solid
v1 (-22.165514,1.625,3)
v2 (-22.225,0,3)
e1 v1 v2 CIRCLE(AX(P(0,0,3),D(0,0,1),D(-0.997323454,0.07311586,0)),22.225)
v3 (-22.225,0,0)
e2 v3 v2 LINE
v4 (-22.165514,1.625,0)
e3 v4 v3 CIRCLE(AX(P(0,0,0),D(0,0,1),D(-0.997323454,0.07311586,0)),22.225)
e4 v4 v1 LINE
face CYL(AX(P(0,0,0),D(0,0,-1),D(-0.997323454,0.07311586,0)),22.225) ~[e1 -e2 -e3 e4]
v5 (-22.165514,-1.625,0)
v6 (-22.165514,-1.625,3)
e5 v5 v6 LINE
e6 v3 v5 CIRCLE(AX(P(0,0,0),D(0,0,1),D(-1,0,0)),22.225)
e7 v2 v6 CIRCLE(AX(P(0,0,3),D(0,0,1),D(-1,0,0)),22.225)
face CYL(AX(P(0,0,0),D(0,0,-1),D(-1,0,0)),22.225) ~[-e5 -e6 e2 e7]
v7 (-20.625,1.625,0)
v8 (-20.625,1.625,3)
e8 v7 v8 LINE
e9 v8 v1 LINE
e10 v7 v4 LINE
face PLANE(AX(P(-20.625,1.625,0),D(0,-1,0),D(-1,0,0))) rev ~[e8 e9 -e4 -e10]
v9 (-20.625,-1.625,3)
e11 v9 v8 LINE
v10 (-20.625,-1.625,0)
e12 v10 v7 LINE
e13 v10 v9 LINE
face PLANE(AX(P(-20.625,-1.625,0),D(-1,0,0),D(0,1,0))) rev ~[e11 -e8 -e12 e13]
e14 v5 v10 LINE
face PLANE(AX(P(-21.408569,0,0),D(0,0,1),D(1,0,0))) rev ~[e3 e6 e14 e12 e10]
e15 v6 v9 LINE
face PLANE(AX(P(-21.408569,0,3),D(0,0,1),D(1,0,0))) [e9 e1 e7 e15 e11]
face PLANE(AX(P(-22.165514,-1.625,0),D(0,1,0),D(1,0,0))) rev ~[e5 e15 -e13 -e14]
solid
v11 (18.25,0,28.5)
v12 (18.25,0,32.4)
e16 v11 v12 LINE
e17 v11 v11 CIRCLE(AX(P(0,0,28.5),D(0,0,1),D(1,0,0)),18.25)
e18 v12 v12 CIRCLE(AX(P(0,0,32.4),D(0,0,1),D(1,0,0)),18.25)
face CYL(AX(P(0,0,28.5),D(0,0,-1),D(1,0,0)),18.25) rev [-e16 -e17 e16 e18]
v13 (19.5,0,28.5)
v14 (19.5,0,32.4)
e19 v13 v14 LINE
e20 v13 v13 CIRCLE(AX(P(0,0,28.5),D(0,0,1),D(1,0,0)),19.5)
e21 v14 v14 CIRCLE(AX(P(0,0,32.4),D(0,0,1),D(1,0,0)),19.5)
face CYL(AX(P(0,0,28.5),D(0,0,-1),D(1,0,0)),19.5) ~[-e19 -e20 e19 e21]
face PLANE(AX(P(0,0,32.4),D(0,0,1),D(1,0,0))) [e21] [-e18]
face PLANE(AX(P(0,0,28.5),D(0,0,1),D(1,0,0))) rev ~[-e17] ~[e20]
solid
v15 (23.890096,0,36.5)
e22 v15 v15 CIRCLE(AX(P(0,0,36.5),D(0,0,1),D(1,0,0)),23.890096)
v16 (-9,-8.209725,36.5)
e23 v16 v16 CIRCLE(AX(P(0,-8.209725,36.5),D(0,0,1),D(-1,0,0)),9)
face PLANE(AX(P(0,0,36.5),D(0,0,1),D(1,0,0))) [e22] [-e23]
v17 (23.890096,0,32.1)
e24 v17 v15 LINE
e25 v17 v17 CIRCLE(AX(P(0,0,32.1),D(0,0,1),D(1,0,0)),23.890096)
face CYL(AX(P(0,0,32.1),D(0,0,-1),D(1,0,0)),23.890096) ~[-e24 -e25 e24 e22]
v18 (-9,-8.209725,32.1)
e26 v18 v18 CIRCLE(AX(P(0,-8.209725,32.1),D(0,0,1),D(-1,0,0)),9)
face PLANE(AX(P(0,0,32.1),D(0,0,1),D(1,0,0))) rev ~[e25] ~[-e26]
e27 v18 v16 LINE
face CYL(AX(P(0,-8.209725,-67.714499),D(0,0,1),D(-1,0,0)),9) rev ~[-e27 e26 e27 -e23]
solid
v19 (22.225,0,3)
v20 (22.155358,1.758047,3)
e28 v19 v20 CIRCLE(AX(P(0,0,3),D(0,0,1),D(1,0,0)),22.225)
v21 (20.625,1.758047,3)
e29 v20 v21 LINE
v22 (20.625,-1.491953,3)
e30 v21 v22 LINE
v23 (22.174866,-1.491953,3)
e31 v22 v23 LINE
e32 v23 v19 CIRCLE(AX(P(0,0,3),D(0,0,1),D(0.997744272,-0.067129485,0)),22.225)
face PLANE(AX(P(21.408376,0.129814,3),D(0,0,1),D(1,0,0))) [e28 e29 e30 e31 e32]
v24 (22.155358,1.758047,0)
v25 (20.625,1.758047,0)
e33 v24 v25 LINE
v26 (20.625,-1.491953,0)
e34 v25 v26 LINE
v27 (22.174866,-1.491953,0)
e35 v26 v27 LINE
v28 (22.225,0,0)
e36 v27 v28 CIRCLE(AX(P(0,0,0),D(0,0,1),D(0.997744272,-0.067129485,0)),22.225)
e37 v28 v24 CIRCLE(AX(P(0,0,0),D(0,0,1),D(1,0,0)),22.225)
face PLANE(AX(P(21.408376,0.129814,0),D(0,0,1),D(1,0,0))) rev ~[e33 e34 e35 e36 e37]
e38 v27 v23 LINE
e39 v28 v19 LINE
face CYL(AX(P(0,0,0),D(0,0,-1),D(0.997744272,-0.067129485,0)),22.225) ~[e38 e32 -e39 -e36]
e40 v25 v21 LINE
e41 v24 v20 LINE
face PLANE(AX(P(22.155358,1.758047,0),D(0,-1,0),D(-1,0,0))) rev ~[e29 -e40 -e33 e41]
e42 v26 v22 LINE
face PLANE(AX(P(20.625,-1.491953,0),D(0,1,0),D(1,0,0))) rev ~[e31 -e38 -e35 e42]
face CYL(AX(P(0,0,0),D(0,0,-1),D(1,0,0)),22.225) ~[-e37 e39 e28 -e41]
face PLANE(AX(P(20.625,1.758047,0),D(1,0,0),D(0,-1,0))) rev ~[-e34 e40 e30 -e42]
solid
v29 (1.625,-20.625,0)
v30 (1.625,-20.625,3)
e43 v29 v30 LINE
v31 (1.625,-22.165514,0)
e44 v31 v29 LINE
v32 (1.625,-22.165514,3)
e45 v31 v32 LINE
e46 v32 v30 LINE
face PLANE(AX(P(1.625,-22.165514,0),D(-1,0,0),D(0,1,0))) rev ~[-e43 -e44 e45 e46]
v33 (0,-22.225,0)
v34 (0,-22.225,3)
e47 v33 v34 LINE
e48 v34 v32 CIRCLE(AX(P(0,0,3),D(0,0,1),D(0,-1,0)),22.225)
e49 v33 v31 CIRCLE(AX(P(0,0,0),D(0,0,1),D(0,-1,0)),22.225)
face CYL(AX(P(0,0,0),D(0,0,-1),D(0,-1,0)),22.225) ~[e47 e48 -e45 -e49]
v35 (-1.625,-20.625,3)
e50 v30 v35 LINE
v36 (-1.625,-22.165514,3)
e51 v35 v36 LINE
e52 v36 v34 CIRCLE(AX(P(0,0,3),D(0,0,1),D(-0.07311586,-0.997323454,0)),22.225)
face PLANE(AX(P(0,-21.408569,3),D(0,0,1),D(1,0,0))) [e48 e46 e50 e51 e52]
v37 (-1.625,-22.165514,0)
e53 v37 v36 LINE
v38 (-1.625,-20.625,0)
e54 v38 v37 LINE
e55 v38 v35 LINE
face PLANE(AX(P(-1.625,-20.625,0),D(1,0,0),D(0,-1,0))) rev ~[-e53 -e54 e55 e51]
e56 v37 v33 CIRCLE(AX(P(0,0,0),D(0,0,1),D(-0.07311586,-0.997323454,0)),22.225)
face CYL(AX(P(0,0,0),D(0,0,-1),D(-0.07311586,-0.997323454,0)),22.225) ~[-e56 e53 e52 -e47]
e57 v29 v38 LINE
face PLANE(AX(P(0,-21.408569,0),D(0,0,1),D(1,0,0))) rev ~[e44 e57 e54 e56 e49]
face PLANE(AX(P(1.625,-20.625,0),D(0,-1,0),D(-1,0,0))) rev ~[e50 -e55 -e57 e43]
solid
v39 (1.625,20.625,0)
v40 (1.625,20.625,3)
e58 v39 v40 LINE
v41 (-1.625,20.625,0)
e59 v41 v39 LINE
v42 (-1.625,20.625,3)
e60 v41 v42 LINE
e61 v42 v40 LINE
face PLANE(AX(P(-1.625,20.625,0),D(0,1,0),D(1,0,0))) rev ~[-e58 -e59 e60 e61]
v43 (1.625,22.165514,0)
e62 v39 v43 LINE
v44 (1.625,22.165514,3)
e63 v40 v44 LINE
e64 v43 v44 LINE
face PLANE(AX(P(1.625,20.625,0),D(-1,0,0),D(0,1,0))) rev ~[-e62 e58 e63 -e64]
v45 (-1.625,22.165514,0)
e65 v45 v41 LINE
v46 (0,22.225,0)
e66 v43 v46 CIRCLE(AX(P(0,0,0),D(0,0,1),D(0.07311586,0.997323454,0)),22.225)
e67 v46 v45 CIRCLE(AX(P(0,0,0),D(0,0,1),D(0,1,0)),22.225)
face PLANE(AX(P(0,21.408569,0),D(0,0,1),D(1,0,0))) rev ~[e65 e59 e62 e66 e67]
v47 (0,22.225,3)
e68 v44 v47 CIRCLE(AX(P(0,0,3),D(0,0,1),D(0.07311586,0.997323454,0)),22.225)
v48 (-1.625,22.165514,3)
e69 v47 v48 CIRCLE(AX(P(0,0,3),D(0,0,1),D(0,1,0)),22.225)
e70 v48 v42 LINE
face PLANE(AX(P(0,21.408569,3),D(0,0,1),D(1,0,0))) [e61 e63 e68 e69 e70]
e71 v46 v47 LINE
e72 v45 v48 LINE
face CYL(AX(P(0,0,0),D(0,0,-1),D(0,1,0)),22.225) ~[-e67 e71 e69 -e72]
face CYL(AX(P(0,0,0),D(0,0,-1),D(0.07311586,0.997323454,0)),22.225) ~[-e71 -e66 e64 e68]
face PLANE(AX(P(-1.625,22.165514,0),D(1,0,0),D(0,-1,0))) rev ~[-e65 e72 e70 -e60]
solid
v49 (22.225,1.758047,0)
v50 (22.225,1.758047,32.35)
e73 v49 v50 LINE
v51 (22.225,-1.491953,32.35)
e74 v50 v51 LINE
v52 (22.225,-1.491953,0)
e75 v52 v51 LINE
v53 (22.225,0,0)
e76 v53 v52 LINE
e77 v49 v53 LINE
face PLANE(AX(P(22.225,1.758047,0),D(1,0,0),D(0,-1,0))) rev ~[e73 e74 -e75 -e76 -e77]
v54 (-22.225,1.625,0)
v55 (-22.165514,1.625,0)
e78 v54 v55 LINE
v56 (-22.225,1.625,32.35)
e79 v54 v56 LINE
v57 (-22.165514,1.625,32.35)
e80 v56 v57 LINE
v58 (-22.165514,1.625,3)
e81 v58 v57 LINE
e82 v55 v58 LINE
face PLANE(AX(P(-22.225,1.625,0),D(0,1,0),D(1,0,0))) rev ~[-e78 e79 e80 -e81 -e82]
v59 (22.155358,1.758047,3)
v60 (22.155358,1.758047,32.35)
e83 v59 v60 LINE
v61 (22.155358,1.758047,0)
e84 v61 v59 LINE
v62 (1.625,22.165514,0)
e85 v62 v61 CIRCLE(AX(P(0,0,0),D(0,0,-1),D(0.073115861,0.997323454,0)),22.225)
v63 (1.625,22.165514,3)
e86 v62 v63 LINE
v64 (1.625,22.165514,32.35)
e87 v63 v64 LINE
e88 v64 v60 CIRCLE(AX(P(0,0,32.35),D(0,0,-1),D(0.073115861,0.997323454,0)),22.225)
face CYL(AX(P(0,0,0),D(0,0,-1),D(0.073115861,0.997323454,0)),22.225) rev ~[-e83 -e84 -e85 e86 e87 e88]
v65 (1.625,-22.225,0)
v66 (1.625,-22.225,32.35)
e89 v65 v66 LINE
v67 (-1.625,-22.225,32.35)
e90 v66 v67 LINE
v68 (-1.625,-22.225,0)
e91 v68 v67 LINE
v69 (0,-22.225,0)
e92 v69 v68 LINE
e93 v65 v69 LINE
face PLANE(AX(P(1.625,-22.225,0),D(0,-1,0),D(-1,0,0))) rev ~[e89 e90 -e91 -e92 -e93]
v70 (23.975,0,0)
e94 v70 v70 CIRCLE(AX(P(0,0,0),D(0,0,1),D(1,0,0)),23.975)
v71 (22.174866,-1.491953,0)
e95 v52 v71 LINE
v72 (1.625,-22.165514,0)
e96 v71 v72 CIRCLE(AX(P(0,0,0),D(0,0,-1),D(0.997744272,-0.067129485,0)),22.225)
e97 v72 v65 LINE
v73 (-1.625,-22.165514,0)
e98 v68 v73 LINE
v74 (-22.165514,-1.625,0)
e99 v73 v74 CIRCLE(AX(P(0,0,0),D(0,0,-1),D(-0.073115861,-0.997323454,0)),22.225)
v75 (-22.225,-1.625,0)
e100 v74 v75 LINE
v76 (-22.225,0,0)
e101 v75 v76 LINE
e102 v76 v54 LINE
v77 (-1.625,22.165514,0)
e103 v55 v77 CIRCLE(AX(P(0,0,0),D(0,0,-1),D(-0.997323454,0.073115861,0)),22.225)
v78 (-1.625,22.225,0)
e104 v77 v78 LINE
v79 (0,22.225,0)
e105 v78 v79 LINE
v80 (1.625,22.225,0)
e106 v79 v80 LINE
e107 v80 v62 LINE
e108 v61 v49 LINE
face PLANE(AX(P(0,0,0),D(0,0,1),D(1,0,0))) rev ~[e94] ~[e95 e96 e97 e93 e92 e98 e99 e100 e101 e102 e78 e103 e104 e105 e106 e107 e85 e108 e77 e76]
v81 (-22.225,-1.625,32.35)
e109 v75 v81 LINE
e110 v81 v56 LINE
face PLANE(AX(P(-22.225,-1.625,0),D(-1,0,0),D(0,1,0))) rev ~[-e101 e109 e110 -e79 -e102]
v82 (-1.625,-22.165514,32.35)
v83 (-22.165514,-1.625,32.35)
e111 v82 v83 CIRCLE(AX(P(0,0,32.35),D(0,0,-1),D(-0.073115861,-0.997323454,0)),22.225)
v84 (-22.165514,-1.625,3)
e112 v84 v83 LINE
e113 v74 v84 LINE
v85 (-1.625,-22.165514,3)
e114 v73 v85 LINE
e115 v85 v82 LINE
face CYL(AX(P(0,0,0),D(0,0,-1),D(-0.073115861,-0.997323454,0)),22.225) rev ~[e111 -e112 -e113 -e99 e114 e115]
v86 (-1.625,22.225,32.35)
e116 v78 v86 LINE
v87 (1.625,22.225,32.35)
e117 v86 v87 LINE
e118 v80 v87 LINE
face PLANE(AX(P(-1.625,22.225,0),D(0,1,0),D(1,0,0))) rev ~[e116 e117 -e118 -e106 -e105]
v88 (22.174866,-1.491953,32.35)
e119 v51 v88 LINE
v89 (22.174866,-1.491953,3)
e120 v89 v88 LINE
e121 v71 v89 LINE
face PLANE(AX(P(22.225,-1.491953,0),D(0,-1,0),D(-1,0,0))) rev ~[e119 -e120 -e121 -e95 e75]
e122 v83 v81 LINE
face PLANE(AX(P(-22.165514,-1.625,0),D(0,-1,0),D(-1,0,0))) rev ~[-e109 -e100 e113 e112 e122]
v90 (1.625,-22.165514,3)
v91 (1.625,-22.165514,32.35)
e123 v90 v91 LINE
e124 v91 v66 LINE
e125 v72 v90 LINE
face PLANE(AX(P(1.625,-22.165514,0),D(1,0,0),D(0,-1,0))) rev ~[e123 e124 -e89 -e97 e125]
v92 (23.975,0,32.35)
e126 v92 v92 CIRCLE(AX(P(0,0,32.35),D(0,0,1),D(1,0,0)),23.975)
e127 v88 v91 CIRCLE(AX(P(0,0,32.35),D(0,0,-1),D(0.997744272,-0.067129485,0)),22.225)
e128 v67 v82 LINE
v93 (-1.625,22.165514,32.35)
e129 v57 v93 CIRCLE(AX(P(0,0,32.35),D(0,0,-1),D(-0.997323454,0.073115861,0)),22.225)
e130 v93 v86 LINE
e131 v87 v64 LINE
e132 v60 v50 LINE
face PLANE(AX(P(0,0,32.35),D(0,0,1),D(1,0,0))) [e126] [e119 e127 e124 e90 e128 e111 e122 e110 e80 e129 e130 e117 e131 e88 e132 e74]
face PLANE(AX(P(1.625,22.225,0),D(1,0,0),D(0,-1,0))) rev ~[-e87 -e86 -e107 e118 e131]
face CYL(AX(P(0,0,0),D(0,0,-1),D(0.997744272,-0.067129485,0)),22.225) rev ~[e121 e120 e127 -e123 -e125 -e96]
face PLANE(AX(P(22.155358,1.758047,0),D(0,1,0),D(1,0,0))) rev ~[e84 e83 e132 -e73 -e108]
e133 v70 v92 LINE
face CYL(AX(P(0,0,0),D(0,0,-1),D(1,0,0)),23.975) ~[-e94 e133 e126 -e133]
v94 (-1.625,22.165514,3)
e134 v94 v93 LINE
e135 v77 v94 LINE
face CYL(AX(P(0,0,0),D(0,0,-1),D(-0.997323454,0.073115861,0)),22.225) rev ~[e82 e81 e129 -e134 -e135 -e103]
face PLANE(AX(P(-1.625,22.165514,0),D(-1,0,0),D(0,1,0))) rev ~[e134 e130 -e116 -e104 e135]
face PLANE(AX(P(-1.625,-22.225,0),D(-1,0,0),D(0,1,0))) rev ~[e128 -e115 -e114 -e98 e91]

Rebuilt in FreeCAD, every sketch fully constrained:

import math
import FreeCAD as App
import Part
import Sketcher

V = App.Vector

doc = App.newDocument("Part")
body = doc.addObject("PartDesign::Body", "Body")
body.AllowCompound = True

# Sketch on XY plane
sketch1 = body.newObject("Sketcher::SketchObject", "Sketch")
sketch1.AttachmentSupport = (doc.getObject("XY_Plane"), [""])
sketch1.MapMode = "FlatFace"
sketch1.addGeometry([
    Part.Circle(V(0, 0, 0), V(0, 0, 1), 23.98),  # 0
    Part.LineSegment(V(22.16, 1.76, 0), V(22.23, 1.76, 0)),  # 1
    Part.LineSegment(V(22.23, 1.76, 0), V(22.23, -1.49, 0)),  # 2
    Part.LineSegment(V(22.23, -1.49, 0), V(22.17, -1.49, 0)),  # 3
    Part.ArcOfCircle(Part.Circle(V(0, 0, 0), V(0, 0, 1), 22.23), math.radians(-86), math.radians(-4)),  # 4
    Part.LineSegment(V(1.62, -22.17, 0), V(1.62, -22.23, 0)),  # 5
    Part.LineSegment(V(1.62, -22.23, 0), V(-1.62, -22.23, 0)),  # 6
    Part.LineSegment(V(-1.62, -22.23, 0), V(-1.62, -22.17, 0)),  # 7
    Part.ArcOfCircle(Part.Circle(V(0, 0, 0), V(0, 0, 1), 22.23), math.radians(-176), math.radians(-94)),  # 8
    Part.LineSegment(V(-22.17, -1.62, 0), V(-22.23, -1.62, 0)),  # 9
    Part.LineSegment(V(-22.23, -1.62, 0), V(-22.23, 1.62, 0)),  # 10
    Part.LineSegment(V(-22.23, 1.62, 0), V(-22.17, 1.62, 0)),  # 11
    Part.ArcOfCircle(Part.Circle(V(0, 0, 0), V(0, 0, 1), 22.23), math.radians(94), math.radians(176)),  # 12
    Part.LineSegment(V(-1.62, 22.17, 0), V(-1.62, 22.23, 0)),  # 13
    Part.LineSegment(V(-1.62, 22.23, 0), V(1.62, 22.23, 0)),  # 14
    Part.LineSegment(V(1.62, 22.23, 0), V(1.62, 22.17, 0)),  # 15
    Part.ArcOfCircle(Part.Circle(V(0, 0, 0), V(0, 0, 1), 22.23), math.radians(5), math.radians(86)),  # 16
], False)
sketch1.addConstraint([
    Sketcher.Constraint("Coincident", 1, 2, 2, 1),
    Sketcher.Constraint("Coincident", 2, 2, 3, 1),
    Sketcher.Constraint("Coincident", 3, 2, 4, 2),
    Sketcher.Constraint("Coincident", 4, 1, 5, 1),
    Sketcher.Constraint("Coincident", 5, 2, 6, 1),
    Sketcher.Constraint("Coincident", 6, 2, 7, 1),
    Sketcher.Constraint("Coincident", 7, 2, 8, 2),
    Sketcher.Constraint("Coincident", 8, 1, 9, 1),
    Sketcher.Constraint("Coincident", 9, 2, 10, 1),
    Sketcher.Constraint("Coincident", 10, 2, 11, 1),
    Sketcher.Constraint("Coincident", 11, 2, 12, 2),
    Sketcher.Constraint("Coincident", 12, 1, 13, 1),
    Sketcher.Constraint("Coincident", 13, 2, 14, 1),
    Sketcher.Constraint("Coincident", 14, 2, 15, 1),
    Sketcher.Constraint("Coincident", 15, 2, 16, 2),
    Sketcher.Constraint("Coincident", 16, 1, 1, 1),
    Sketcher.Constraint("Horizontal", 1),
    Sketcher.Constraint("Vertical", 2),
    Sketcher.Constraint("Horizontal", 3),
    Sketcher.Constraint("Vertical", 5),
    Sketcher.Constraint("Horizontal", 6),
    Sketcher.Constraint("Vertical", 7),
    Sketcher.Constraint("Horizontal", 9),
    Sketcher.Constraint("Vertical", 10),
    Sketcher.Constraint("Horizontal", 11),
    Sketcher.Constraint("Vertical", 13),
    Sketcher.Constraint("Horizontal", 14),
    Sketcher.Constraint("Vertical", 15),
    Sketcher.Constraint("Coincident", 0, 3, -1, 1),
    Sketcher.Constraint("Coincident", 4, 3, -1, 1),
    Sketcher.Constraint("Coincident", 8, 3, -1, 1),
    Sketcher.Constraint("Coincident", 12, 3, -1, 1),
    Sketcher.Constraint("Coincident", 16, 3, -1, 1),
    Sketcher.Constraint("Equal", 4, 8),
    Sketcher.Constraint("Equal", 8, 12),
    Sketcher.Constraint("Equal", 12, 16),
    Sketcher.Constraint("Symmetric", 5, 2, 13, 2, -1, 1),
    Sketcher.Constraint("Horizontal", 4, 1, 7, 2),
    Sketcher.Constraint("Horizontal", 12, 1, 15, 2),
    Sketcher.Constraint("Vertical", 8, 1, 11, 2),
    Sketcher.Constraint("Equal", 14, 2),
    Sketcher.Constraint("Equal", 11, 5),
    Sketcher.Constraint("Equal", 2, 10),
    Sketcher.Constraint("Diameter", 0, 47.95),
    Sketcher.Constraint("Radius", 4, 22.225),
    Sketcher.Constraint("DistanceX", 6, 2, 6, 1, 3.25),
    Sketcher.Constraint("DistanceX", -1, 1, 1, 2, 22.225),
    Sketcher.Constraint("DistanceY", 5, 2, -1, 1, 22.225),
    Sketcher.Constraint("DistanceX", 1, 1, 1, 2, 0.069642),
])
pad1 = body.newObject("PartDesign::Pad", "Pad")
pad1.Profile = sketch1
pad1.Length = 32.35

# Sketch on XY plane
sketch2 = body.newObject("Sketcher::SketchObject", "Sketch001")
sketch2.AttachmentSupport = (doc.getObject("XY_Plane"), [""])
sketch2.MapMode = "FlatFace"
sketch2.addGeometry([
    Part.LineSegment(V(1.6, 20.6, 0), V(1.6, 22.2, 0)),  # 0
    Part.ArcOfCircle(Part.Circle(V(0, 0, 0), V(0, 0, 1), 22.2), math.radians(85.81), math.radians(90)),  # 1
    Part.ArcOfCircle(Part.Circle(V(0, 0, 0), V(0, 0, 1), 22.2), math.radians(90), math.radians(94.19)),  # 2
    Part.LineSegment(V(-1.6, 22.2, 0), V(-1.6, 20.6, 0)),  # 3
    Part.LineSegment(V(-1.6, 20.6, 0), V(1.6, 20.6, 0)),  # 4
    Part.ArcOfCircle(Part.Circle(V(0, 0, 0), V(0, 0, 1), 22.2), math.radians(-3.85), math.radians(0)),  # 5
    Part.ArcOfCircle(Part.Circle(V(0, 0, 0), V(0, 0, 1), 22.2), math.radians(0), math.radians(4.54)),  # 6
    Part.LineSegment(V(22.2, 1.8, 0), V(20.6, 1.8, 0)),  # 7
    Part.LineSegment(V(20.6, 1.8, 0), V(20.6, -1.5, 0)),  # 8
    Part.LineSegment(V(20.6, -1.5, 0), V(22.2, -1.5, 0)),  # 9
    Part.ArcOfCircle(Part.Circle(V(0, 0, 0), V(0, 0, 1), 22.2), math.radians(-90), math.radians(-85.81)),  # 10
    Part.LineSegment(V(1.6, -22.2, 0), V(1.6, -20.6, 0)),  # 11
    Part.LineSegment(V(1.6, -20.6, 0), V(-1.6, -20.6, 0)),  # 12
    Part.LineSegment(V(-1.6, -20.6, 0), V(-1.6, -22.2, 0)),  # 13
    Part.ArcOfCircle(Part.Circle(V(0, 0, 0), V(0, 0, 1), 22.2), math.radians(-94.19), math.radians(-90)),  # 14
    Part.LineSegment(V(-20.6, 1.6, 0), V(-22.2, 1.6, 0)),  # 15
    Part.ArcOfCircle(Part.Circle(V(0, 0, 0), V(0, 0, 1), 22.2), math.radians(175.81), math.radians(180)),  # 16
    Part.ArcOfCircle(Part.Circle(V(0, 0, 0), V(0, 0, 1), 22.2), math.radians(-180), math.radians(-175.81)),  # 17
    Part.LineSegment(V(-22.2, -1.6, 0), V(-20.6, -1.6, 0)),  # 18
    Part.LineSegment(V(-20.6, -1.6, 0), V(-20.6, 1.6, 0)),  # 19
], False)
sketch2.addConstraint([
    Sketcher.Constraint("Coincident", 0, 2, 1, 1),
    Sketcher.Constraint("Tangent", 1, 2, 2, 1),
    Sketcher.Constraint("Coincident", 2, 2, 3, 1),
    Sketcher.Constraint("Coincident", 3, 2, 4, 1),
    Sketcher.Constraint("Coincident", 4, 2, 0, 1),
    Sketcher.Constraint("Tangent", 5, 2, 6, 1),
    Sketcher.Constraint("Coincident", 6, 2, 7, 1),
    Sketcher.Constraint("Coincident", 7, 2, 8, 1),
    Sketcher.Constraint("Coincident", 8, 2, 9, 1),
    Sketcher.Constraint("Coincident", 9, 2, 5, 1),
    Sketcher.Constraint("Coincident", 10, 2, 11, 1),
    Sketcher.Constraint("Coincident", 11, 2, 12, 1),
    Sketcher.Constraint("Coincident", 12, 2, 13, 1),
    Sketcher.Constraint("Coincident", 13, 2, 14, 1),
    Sketcher.Constraint("Tangent", 14, 2, 10, 1),
    Sketcher.Constraint("Coincident", 15, 2, 16, 1),
    Sketcher.Constraint("Tangent", 16, 2, 17, 1),
    Sketcher.Constraint("Coincident", 17, 2, 18, 1),
    Sketcher.Constraint("Coincident", 18, 2, 19, 1),
    Sketcher.Constraint("Coincident", 19, 2, 15, 1),
    Sketcher.Constraint("Vertical", 0),
    Sketcher.Constraint("Vertical", 3),
    Sketcher.Constraint("Horizontal", 4),
    Sketcher.Constraint("Horizontal", 7),
    Sketcher.Constraint("Vertical", 8),
    Sketcher.Constraint("Horizontal", 9),
    Sketcher.Constraint("Vertical", 11),
    Sketcher.Constraint("Horizontal", 12),
    Sketcher.Constraint("Vertical", 13),
    Sketcher.Constraint("Horizontal", 15),
    Sketcher.Constraint("Horizontal", 18),
    Sketcher.Constraint("Vertical", 19),
    Sketcher.Constraint("Coincident", 1, 3, -1, 1),
    Sketcher.Constraint("Coincident", 5, 3, -1, 1),
    Sketcher.Constraint("Coincident", 10, 3, -1, 1),
    Sketcher.Constraint("Coincident", 16, 3, -1, 1),
    Sketcher.Constraint("Equal", 1, 2),
    Sketcher.Constraint("Equal", 2, 5),
    Sketcher.Constraint("Equal", 5, 6),
    Sketcher.Constraint("Equal", 6, 10),
    Sketcher.Constraint("Equal", 10, 14),
    Sketcher.Constraint("Equal", 14, 16),
    Sketcher.Constraint("Equal", 16, 17),
    Sketcher.Constraint("Symmetric", 3, 2, 11, 2, -1, 1),
    Sketcher.Constraint("PointOnObject", 1, 2, -2),
    Sketcher.Constraint("PointOnObject", 5, 2, -1),
    Sketcher.Constraint("PointOnObject", 14, 2, -2),
    Sketcher.Constraint("PointOnObject", 16, 2, -1),
    Sketcher.Constraint("Horizontal", 0, 2, 2, 2),
    Sketcher.Constraint("Horizontal", 10, 2, 13, 2),
    Sketcher.Constraint("Vertical", 15, 2, 17, 2),
    Sketcher.Constraint("Equal", 18, 0),
    Sketcher.Constraint("Equal", 12, 8),
    Sketcher.Constraint("Equal", 8, 19),
    Sketcher.Constraint("Radius", 1, 22.225),
    Sketcher.Constraint("DistanceX", 4, 1, 4, 2, 3.25),
    Sketcher.Constraint("DistanceY", 3, 2, 1, 2, 1.6),
    Sketcher.Constraint("DistanceX", 7, 2, 5, 2, 1.6),
    Sketcher.Constraint("DistanceX", 7, 2, 7, 1, 1.530358),
])
pad2 = body.newObject("PartDesign::Pad", "Pad001")
pad2.Profile = sketch2
pad2.Length = 3
body2 = doc.addObject("PartDesign::Body", "Body001")

# Sketch on XY plane
sketch3 = body2.newObject("Sketcher::SketchObject", "Sketch002")
sketch3.AttachmentSupport = (doc.getObject("XY_Plane001"), [""])
sketch3.MapMode = "FlatFace"
sketch3.AttachmentOffset = App.Placement(V(0, 0, 28.5), App.Rotation())
sketch3.addGeometry([
    Part.Circle(V(0, 0, 0), V(0, 0, 1), 20),
    Part.Circle(V(0, 0, 0), V(0, 0, 1), 18),
], False)
sketch3.addConstraint([
    Sketcher.Constraint("Coincident", 0, 3, -1, 1),
    Sketcher.Constraint("Coincident", 1, 3, -1, 1),
    Sketcher.Constraint("Diameter", 0, 39.0),
    Sketcher.Constraint("Diameter", 1, 36.5),
])
pad3 = body2.newObject("PartDesign::Pad", "Pad002")
pad3.Profile = sketch3
pad3.Length = 3.9
body3 = doc.addObject("PartDesign::Body", "Body002")

# Sketch on XY plane
sketch4 = body3.newObject("Sketcher::SketchObject", "Sketch003")
sketch4.AttachmentSupport = (doc.getObject("XY_Plane002"), [""])
sketch4.MapMode = "FlatFace"
sketch4.AttachmentOffset = App.Placement(V(0, 0, 32.1), App.Rotation())
sketch4.addGeometry(Part.Circle(V(0, 0, 0), V(0, 0, 1), 24), False)
sketch4.addConstraint([
    Sketcher.Constraint("Coincident", 0, 3, -1, 1),
    Sketcher.Constraint("Diameter", 0, 47.780192),
])
pad4 = body3.newObject("PartDesign::Pad", "Pad003")
pad4.Profile = sketch4
pad4.Length = 4.4

# Sketch on XY plane
sketch5 = body3.newObject("Sketcher::SketchObject", "Sketch004")
sketch5.AttachmentSupport = (doc.getObject("XY_Plane002"), [""])
sketch5.MapMode = "FlatFace"
sketch5.addGeometry(Part.Circle(V(0, -8, 0), V(0, 0, 1), 9), False)
sketch5.addConstraint([
    Sketcher.Constraint("PointOnObject", 0, 3, -2),
    Sketcher.Constraint("Diameter", 0, 18.0),
    Sketcher.Constraint("DistanceY", 0, 3, -1, 1, 8.209725),
])
doc.recompute()
hole = body3.newObject("PartDesign::Hole", "Hole")
hole.Profile = sketch5
hole.ThreadType = "None"
hole.Diameter = 18
hole.DepthType = "ThroughAll"
hole.Reversed = True

doc.recompute()
